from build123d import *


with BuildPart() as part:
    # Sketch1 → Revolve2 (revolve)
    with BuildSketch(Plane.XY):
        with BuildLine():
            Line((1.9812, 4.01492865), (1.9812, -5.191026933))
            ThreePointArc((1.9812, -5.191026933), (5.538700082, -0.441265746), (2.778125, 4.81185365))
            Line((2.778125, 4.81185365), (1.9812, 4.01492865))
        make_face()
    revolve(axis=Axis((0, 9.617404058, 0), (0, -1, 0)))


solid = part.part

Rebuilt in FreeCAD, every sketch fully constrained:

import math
import FreeCAD as App
import Part
import Sketcher

V = App.Vector
Q = App.Units.Quantity

doc = App.newDocument("Part")
body = doc.addObject("PartDesign::Body", "Body")

# Sketch on XY plane
sketch1 = doc.addObject("Sketcher::SketchObject", "Sketch")
body.addObject(sketch1)
sketch1.AttachmentSupport = (doc.XY_Plane, [""])
sketch1.MapMode = "FlatFace"
sketch1.addGeometry(Part.LineSegment(V(1.9812, 4.014929, 0), V(1.9812, -5.191027, 0)), False)
sketch1.addGeometry(Part.ArcOfCircle(Part.Circle(V(0, 0, 0), V(0, 0, 1), 5.55625), math.radians(-69.110216), math.radians(60)), False)
sketch1.addGeometry(Part.LineSegment(V(2.778125, 4.811854, 0), V(1.9812, 4.014929, 0)), False)
sketch1.addConstraint(Sketcher.Constraint("Coincident", 0, 2, 1, 1))
sketch1.addConstraint(Sketcher.Constraint("Coincident", 1, 2, 2, 1))
sketch1.addConstraint(Sketcher.Constraint("Coincident", 2, 2, 0, 1))
sketch1.addConstraint(Sketcher.Constraint("Vertical", 0))
sketch1.addConstraint(Sketcher.Constraint("Coincident", 1, 3, -1, 1))
sketch1.addConstraint(Sketcher.Constraint("Angle", 2, Q("-135 deg")))
sketch1.addConstraint(Sketcher.Constraint("Radius", 1, Q("0.21875 in")))
sketch1.addConstraint(Sketcher.Constraint("DistanceX", -1, 1, 0, 2, Q("0.078 in")))
sketch1.addConstraint(Sketcher.Constraint("DistanceX", -1, 1, 1, 2, Q("0.109375 in")))
revolution = doc.addObject("PartDesign::Revolution", "Revolution")
body.addObject(revolution)
revolution.Profile = sketch1
revolution.ReferenceAxis = (sketch1, ["V_Axis"])
revolution.Angle = 360

doc.recompute()
